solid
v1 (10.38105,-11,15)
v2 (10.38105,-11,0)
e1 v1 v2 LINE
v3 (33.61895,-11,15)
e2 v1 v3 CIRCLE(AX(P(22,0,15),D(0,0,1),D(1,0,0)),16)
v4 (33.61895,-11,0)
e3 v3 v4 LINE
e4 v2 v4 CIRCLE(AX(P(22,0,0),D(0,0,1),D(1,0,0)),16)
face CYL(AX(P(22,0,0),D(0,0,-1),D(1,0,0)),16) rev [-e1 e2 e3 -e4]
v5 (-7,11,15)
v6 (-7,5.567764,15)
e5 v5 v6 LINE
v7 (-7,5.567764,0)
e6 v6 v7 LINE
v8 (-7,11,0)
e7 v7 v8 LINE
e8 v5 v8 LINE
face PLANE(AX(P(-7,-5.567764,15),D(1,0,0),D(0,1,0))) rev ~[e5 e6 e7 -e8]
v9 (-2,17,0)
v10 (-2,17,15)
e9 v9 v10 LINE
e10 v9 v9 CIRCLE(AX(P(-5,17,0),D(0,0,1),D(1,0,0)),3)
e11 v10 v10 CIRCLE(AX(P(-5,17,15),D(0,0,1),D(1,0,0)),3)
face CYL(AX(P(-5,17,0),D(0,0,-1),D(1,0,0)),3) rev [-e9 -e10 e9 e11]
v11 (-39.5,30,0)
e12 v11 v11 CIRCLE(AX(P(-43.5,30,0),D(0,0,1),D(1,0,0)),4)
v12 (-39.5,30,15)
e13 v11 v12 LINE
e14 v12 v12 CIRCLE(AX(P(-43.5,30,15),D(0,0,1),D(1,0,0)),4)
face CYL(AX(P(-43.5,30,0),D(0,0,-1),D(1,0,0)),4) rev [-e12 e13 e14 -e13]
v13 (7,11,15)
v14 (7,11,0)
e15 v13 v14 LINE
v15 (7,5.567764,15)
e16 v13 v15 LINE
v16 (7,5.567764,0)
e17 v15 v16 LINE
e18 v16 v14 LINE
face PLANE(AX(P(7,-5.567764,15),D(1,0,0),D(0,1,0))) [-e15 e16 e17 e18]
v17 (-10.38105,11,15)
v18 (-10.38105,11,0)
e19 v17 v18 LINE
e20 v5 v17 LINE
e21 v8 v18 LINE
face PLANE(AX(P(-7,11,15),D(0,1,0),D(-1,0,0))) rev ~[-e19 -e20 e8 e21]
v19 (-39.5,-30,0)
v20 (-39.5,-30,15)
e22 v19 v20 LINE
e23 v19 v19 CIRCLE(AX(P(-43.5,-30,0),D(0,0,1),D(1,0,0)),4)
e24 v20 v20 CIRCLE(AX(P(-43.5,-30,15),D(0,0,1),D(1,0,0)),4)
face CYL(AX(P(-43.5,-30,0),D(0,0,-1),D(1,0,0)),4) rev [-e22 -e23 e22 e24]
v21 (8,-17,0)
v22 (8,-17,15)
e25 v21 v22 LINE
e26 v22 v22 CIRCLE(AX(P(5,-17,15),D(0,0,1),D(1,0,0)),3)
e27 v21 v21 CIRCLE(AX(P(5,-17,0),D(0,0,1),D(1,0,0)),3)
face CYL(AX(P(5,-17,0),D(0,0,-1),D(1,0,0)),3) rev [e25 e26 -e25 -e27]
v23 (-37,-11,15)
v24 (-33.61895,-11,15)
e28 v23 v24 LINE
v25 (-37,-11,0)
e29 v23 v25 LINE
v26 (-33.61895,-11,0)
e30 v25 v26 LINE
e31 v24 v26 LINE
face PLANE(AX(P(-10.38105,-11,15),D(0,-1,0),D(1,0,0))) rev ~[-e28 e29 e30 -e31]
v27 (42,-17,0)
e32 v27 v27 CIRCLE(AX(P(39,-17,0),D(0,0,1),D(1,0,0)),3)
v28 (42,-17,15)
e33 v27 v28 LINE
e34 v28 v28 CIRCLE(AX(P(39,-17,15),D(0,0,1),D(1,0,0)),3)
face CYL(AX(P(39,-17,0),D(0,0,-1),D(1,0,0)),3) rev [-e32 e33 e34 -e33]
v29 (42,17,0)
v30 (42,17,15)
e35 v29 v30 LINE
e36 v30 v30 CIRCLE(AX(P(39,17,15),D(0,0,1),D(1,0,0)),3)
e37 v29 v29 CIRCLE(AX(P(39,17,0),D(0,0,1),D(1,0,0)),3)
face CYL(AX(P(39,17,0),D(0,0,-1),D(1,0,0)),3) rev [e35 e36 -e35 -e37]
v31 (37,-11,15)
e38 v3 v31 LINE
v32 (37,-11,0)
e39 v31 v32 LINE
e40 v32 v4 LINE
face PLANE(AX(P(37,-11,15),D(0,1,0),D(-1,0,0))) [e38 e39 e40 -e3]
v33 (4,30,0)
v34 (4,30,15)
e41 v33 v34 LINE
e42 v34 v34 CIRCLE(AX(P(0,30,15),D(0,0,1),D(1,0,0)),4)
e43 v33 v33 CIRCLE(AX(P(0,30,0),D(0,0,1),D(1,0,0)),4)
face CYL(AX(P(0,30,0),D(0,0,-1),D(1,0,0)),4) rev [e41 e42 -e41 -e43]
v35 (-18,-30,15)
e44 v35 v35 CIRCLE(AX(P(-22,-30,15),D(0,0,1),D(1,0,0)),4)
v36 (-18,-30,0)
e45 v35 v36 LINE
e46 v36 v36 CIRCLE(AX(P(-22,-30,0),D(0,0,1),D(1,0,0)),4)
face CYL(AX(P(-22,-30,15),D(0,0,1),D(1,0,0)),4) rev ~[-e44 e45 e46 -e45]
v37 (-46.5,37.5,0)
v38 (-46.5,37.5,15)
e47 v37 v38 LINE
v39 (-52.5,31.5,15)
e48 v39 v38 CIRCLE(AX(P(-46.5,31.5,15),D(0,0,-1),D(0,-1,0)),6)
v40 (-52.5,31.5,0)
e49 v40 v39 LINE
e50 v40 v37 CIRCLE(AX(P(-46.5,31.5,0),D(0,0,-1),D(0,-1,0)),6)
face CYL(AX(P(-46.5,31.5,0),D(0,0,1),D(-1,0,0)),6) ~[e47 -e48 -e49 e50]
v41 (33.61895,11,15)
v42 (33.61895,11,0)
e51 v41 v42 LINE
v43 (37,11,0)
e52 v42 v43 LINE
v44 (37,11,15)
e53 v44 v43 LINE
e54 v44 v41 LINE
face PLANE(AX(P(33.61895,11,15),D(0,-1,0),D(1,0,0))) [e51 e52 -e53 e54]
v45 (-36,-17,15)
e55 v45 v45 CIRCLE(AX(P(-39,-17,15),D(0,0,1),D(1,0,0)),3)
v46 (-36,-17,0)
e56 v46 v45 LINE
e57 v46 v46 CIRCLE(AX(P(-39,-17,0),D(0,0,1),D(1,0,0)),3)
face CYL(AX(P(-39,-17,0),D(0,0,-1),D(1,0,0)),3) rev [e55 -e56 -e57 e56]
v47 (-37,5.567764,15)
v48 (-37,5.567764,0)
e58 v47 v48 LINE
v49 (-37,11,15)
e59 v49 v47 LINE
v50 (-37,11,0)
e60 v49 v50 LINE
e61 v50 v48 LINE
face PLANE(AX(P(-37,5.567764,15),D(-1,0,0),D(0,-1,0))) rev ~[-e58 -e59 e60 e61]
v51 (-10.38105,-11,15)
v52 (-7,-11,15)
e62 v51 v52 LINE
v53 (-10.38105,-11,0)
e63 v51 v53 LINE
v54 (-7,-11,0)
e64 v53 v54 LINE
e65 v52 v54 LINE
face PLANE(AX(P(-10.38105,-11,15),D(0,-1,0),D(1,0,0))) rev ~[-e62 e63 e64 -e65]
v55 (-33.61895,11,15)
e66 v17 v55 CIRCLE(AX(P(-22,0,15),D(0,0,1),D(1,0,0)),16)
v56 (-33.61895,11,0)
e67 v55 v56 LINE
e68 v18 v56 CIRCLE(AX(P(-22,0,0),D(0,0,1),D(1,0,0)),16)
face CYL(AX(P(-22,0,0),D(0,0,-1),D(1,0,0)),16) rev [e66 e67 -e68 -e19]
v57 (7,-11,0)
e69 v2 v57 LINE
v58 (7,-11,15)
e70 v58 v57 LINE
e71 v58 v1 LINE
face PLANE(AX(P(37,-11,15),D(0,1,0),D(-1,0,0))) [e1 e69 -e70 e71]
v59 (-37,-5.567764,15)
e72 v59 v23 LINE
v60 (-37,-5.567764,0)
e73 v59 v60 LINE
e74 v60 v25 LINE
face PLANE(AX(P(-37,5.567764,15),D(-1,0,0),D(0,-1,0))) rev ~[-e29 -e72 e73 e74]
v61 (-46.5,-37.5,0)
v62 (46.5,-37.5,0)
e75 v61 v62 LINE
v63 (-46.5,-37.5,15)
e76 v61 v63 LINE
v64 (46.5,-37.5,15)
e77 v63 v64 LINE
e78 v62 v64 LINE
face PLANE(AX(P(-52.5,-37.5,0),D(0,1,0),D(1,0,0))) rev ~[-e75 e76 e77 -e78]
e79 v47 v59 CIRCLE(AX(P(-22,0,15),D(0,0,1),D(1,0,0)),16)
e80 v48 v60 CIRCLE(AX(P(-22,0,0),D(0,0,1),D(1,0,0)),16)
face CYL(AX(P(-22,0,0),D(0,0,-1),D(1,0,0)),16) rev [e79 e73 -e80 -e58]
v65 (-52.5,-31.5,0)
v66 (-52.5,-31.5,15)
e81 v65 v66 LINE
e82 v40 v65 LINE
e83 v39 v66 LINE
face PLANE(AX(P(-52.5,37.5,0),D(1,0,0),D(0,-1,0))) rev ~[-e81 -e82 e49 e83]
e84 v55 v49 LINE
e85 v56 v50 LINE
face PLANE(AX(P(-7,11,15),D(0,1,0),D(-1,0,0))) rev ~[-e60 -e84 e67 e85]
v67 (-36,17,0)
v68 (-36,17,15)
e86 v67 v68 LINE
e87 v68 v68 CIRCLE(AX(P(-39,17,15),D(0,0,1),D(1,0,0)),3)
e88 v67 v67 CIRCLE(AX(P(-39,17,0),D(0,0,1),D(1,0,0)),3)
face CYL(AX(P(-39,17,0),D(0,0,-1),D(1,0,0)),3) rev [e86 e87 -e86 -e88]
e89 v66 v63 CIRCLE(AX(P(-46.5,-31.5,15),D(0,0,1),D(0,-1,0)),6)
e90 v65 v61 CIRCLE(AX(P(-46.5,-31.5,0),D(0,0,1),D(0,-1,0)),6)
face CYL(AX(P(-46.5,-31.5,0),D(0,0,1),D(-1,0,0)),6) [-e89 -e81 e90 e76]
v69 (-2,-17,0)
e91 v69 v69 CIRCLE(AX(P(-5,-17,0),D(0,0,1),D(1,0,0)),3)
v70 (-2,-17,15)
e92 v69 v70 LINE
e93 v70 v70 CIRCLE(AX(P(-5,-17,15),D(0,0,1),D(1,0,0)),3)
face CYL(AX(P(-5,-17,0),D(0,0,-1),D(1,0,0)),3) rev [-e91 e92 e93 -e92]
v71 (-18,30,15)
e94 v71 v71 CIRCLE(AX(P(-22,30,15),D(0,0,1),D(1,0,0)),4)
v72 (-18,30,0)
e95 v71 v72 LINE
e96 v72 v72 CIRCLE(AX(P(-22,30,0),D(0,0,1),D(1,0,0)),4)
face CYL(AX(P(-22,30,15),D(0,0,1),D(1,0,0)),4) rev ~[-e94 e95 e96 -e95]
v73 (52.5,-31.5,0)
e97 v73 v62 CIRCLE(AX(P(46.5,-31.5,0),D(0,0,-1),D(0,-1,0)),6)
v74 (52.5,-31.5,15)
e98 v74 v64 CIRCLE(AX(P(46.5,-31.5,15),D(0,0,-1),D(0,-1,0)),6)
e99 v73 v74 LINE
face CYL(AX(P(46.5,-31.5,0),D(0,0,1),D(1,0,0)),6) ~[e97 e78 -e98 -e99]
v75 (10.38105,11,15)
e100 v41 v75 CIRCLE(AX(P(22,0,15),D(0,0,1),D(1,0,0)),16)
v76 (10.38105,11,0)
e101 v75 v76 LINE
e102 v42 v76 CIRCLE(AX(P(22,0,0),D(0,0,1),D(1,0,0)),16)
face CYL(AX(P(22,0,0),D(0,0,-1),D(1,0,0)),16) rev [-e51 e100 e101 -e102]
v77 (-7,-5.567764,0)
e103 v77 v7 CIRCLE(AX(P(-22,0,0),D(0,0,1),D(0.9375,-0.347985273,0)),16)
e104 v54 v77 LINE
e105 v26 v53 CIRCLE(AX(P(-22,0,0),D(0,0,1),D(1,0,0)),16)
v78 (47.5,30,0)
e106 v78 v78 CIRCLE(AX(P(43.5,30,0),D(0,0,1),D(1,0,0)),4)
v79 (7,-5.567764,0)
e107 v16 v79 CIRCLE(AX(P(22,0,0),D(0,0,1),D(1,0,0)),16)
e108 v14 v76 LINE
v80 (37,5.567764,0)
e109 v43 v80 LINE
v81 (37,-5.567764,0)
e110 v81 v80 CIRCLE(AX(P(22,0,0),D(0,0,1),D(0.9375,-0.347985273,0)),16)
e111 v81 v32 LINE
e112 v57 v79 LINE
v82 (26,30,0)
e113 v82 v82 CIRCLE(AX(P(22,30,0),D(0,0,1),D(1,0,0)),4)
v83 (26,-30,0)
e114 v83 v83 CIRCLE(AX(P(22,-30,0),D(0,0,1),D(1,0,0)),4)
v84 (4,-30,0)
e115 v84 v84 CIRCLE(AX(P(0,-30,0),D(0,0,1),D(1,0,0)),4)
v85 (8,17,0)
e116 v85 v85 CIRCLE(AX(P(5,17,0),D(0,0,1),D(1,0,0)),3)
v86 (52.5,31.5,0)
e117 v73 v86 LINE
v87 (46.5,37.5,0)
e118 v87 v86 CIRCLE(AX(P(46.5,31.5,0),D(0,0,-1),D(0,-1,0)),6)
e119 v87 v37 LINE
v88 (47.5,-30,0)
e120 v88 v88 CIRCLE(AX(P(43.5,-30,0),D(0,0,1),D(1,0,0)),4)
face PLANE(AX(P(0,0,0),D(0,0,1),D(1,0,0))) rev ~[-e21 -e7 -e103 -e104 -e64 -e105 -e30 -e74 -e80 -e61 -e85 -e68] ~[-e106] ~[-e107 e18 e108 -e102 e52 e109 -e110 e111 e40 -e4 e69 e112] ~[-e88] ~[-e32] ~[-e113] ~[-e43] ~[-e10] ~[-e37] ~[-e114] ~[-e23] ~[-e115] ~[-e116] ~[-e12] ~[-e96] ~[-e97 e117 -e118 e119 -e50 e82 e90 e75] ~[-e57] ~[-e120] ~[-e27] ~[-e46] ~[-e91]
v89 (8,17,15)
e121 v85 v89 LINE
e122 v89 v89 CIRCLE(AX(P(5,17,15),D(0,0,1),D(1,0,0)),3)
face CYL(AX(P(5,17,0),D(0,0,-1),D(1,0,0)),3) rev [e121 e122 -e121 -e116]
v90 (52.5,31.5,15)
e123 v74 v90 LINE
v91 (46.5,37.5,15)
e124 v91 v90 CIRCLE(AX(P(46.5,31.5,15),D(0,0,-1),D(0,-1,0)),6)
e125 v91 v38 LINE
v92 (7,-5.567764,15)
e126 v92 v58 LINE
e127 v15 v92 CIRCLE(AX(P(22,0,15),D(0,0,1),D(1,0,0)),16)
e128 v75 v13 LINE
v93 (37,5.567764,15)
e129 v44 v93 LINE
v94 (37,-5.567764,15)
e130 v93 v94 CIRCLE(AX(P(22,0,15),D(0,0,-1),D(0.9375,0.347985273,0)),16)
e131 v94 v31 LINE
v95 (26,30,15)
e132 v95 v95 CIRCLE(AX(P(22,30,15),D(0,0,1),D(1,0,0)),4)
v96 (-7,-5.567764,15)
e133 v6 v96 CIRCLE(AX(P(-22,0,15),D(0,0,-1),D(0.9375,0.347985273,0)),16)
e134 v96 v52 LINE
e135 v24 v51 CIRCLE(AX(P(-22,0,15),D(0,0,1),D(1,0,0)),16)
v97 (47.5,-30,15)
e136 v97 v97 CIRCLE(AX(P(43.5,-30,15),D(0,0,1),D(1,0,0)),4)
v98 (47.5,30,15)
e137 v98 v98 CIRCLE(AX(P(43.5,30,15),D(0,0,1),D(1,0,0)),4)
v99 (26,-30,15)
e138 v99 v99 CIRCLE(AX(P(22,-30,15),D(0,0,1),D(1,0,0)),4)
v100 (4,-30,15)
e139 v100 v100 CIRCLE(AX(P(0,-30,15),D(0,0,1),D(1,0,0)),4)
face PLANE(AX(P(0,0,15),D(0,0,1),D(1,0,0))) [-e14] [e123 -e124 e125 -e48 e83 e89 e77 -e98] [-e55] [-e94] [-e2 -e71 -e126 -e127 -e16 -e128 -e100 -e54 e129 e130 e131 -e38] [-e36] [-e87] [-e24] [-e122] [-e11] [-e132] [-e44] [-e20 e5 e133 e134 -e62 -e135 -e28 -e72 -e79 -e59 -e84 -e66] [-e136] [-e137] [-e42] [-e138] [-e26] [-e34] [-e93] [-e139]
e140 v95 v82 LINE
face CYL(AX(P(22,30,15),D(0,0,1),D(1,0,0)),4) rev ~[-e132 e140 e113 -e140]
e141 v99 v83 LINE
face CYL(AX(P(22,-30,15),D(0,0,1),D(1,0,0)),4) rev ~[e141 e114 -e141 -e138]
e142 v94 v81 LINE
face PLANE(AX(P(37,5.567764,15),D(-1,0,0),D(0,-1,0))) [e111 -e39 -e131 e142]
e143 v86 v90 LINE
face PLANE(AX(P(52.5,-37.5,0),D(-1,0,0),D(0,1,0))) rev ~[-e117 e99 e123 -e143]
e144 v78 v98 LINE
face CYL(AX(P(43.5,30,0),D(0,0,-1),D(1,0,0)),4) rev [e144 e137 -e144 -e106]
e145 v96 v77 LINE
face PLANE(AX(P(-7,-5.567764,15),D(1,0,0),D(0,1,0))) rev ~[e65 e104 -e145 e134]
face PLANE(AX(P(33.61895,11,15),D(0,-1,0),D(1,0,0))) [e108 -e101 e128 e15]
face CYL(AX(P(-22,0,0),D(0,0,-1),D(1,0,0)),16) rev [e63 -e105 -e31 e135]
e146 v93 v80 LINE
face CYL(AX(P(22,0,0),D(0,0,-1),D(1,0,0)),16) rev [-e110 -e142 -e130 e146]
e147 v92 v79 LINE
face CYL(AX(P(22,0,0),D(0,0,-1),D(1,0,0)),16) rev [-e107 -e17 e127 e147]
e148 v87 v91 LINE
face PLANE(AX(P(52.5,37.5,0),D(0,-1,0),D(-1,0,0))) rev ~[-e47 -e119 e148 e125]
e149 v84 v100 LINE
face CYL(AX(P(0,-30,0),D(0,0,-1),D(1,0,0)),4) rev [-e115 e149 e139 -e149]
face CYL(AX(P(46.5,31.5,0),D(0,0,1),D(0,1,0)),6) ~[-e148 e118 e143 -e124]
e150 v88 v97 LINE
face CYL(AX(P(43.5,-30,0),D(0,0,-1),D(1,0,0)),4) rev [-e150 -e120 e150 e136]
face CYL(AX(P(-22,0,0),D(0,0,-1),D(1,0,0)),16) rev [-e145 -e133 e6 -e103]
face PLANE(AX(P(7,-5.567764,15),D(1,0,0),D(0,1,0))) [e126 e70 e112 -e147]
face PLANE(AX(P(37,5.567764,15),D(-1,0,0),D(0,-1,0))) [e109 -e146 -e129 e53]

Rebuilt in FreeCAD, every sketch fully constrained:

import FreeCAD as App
import Part
import Sketcher
from FreeCAD import Vector
Q = App.Units.Quantity


def edges_at(feature, points):
    """Names of the edges that pass closest to the given points."""
    edges = feature.Shape.Edges
    near = lambda p: min(range(len(edges)), key=lambda i: edges[i].distToShape(Part.Vertex(*p))[0])
    return sorted({f"Edge{near(p) + 1}" for p in points})

doc = App.newDocument("Part")
params = doc.addObject("Spreadsheet::Sheet", "Params")
for row, (alias, value) in enumerate([
    ("sketch1_diameter", "8 mm"),
    ("sketch1_diameter2", "6 mm"),
    ("sketch1_diameter3", "32 mm"),
    ("sketch1_width", "105 mm"),
    ("sketch1_height", "75 mm"),
    ("pad1_length", "15 mm"),
    ("fillet_radius", "6 mm"),
    ("sketch2_width", "30 mm"),
    ("sketch2_height", "22 mm"),
    ("sketch3_diameter", "8 mm"),
], start=1):
    params.set(f"A{row}", alias)
    params.set(f"B{row}", "=" + value)
    params.setAlias(f"B{row}", alias)

body = doc.addObject("PartDesign::Body", "Body")

# Sketch on XY plane
sketch1 = doc.addObject("Sketcher::SketchObject", "Sketch")
body.addObject(sketch1)
sketch1.AttachmentSupport = (doc.XY_Plane, [""])
sketch1.MapMode = "FlatFace"
sketch1.addGeometry(Part.LineSegment(Vector(-52.5, 37.5, 0), Vector(-52.5, -37.5, 0)), False)
sketch1.addGeometry(Part.LineSegment(Vector(-52.5, -37.5, 0), Vector(52.5, -37.5, 0)), False)
sketch1.addGeometry(Part.LineSegment(Vector(52.5, -37.5, 0), Vector(52.5, 37.5, 0)), False)
sketch1.addGeometry(Part.LineSegment(Vector(52.5, 37.5, 0), Vector(-52.5, 37.5, 0)), False)
sketch1.addGeometry(Part.Circle(Vector(-43.5, -30, 0), Vector(0, 0, 1), 4), False)
sketch1.addGeometry(Part.Circle(Vector(-39, -17, 0), Vector(0, 0, 1), 3), False)
sketch1.addGeometry(Part.Circle(Vector(-5, -17, 0), Vector(0, 0, 1), 3), False)
sketch1.addGeometry(Part.Circle(Vector(0, -30, 0), Vector(0, 0, 1), 4), False)
sketch1.addGeometry(Part.Circle(Vector(43.5, -30, 0), Vector(0, 0, 1), 4), False)
sketch1.addGeometry(Part.Circle(Vector(5, -17, 0), Vector(0, 0, 1), 3), False)
sketch1.addGeometry(Part.Circle(Vector(39, -17, 0), Vector(0, 0, 1), 3), False)
sketch1.addGeometry(Part.Circle(Vector(-39, 17, 0), Vector(0, 0, 1), 3), False)
sketch1.addGeometry(Part.Circle(Vector(-22, 0, 0), Vector(0, 0, 1), 16), False)
sketch1.addGeometry(Part.Circle(Vector(-5, 17, 0), Vector(0, 0, 1), 3), False)
sketch1.addGeometry(Part.Circle(Vector(-43.5, 30, 0), Vector(0, 0, 1), 4), False)
sketch1.addGeometry(Part.Circle(Vector(22, 0, 0), Vector(0, 0, 1), 16), False)
sketch1.addGeometry(Part.Circle(Vector(5, 17, 0), Vector(0, 0, 1), 3), False)
sketch1.addGeometry(Part.Circle(Vector(39, 17, 0), Vector(0, 0, 1), 3), False)
sketch1.addGeometry(Part.Circle(Vector(0, 30, 0), Vector(0, 0, 1), 4), False)
sketch1.addGeometry(Part.Circle(Vector(43.5, 30, 0), Vector(0, 0, 1), 4), False)
sketch1.addConstraint(Sketcher.Constraint("Coincident", 0, 2, 1, 1))
sketch1.addConstraint(Sketcher.Constraint("Coincident", 1, 2, 2, 1))
sketch1.addConstraint(Sketcher.Constraint("Coincident", 2, 2, 3, 1))
sketch1.addConstraint(Sketcher.Constraint("Coincident", 3, 2, 0, 1))
sketch1.addConstraint(Sketcher.Constraint("Vertical", 0))
sketch1.addConstraint(Sketcher.Constraint("Horizontal", 1))
sketch1.addConstraint(Sketcher.Constraint("Vertical", 2))
sketch1.addConstraint(Sketcher.Constraint("Horizontal", 3))
sketch1.addConstraint(Sketcher.Constraint("Equal", 5, 6))
sketch1.addConstraint(Sketcher.Constraint("Equal", 4, 7))
sketch1.addConstraint(Sketcher.Constraint("Equal", 7, 8))
sketch1.addConstraint(Sketcher.Constraint("Equal", 6, 9))
sketch1.addConstraint(Sketcher.Constraint("Equal", 9, 10))
sketch1.addConstraint(Sketcher.Constraint("Equal", 10, 11))
sketch1.addConstraint(Sketcher.Constraint("Equal", 11, 13))
sketch1.addConstraint(Sketcher.Constraint("Equal", 8, 14))
sketch1.addConstraint(Sketcher.Constraint("Equal", 12, 15))
sketch1.addConstraint(Sketcher.Constraint("Equal", 13, 16))
sketch1.addConstraint(Sketcher.Constraint("Equal", 16, 17))
sketch1.addConstraint(Sketcher.Constraint("Equal", 14, 18))
sketch1.addConstraint(Sketcher.Constraint("Equal", 18, 19))
sketch1.addConstraint(Sketcher.Constraint("Symmetric", 10, 3, 11, 3, -1, 1))
sketch1.addConstraint(Sketcher.Constraint("Symmetric", 9, 3, 13, 3, -1, 1))
sketch1.addConstraint(Sketcher.Constraint("Symmetric", 8, 3, 14, 3, -1, 1))
sketch1.addConstraint(Sketcher.Constraint("Symmetric", 12, 3, 15, 3, -1, 1))
sketch1.addConstraint(Sketcher.Constraint("Symmetric", 6, 3, 16, 3, -1, 1))
sketch1.addConstraint(Sketcher.Constraint("Symmetric", 5, 3, 17, 3, -1, 1))
sketch1.addConstraint(Sketcher.Constraint("Symmetric", 7, 3, 18, 3, -1, 1))
sketch1.addConstraint(Sketcher.Constraint("Symmetric", 4, 3, 19, 3, -1, 1))
sketch1.addConstraint(Sketcher.Constraint("Symmetric", 0, 2, 2, 2, -1, 1))
sketch1.addConstraint(Sketcher.Constraint("Symmetric", 4, 3, 8, 3, -2))
sketch1.addConstraint(Sketcher.Constraint("Symmetric", 6, 3, 9, 3, -2))
sketch1.addConstraint(Sketcher.Constraint("Symmetric", 5, 3, 10, 3, -2))
sketch1.addConstraint(Sketcher.Constraint("PointOnObject", 7, 3, -2))
sketch1.addConstraint(Sketcher.Constraint("PointOnObject", 12, 3, -1))
sketch1.addConstraint(Sketcher.Constraint("Horizontal", 5, 3, 6, 3))
sketch1.addConstraint(Sketcher.Constraint("Horizontal", 4, 3, 7, 3))
sketch1.addConstraint(Sketcher.Constraint("Diameter", 4, Q("8 mm")))
sketch1.addConstraint(Sketcher.Constraint("Diameter", 5, Q("6 mm")))
sketch1.addConstraint(Sketcher.Constraint("Diameter", 12, Q("32 mm")))
sketch1.addConstraint(Sketcher.Constraint("DistanceX", 1, 1, 1, 2, Q("105 mm")))
sketch1.addConstraint(Sketcher.Constraint("DistanceY", 0, 2, 0, 1, Q("75 mm")))
sketch1.addConstraint(Sketcher.Constraint("DistanceX", 5, 3, 6, 3, Q("34 mm")))
sketch1.addConstraint(Sketcher.Constraint("DistanceX", 4, 3, 8, 3, Q("87 mm")))
sketch1.addConstraint(Sketcher.Constraint("DistanceX", 5, 3, 9, 3, Q("44 mm")))
sketch1.addConstraint(Sketcher.Constraint("DistanceY", 5, 3, 11, 3, Q("34 mm")))
sketch1.addConstraint(Sketcher.Constraint("DistanceY", 4, 3, 14, 3, Q("60 mm")))
sketch1.addConstraint(Sketcher.Constraint("DistanceX", 12, 3, -1, 1, Q("22 mm")))
sketch1.setExpression("Constraints[37]", "Params.sketch1_diameter")
sketch1.setExpression("Constraints[38]", "Params.sketch1_diameter2")
sketch1.setExpression("Constraints[39]", "Params.sketch1_diameter3")
sketch1.setExpression("Constraints[40]", "Params.sketch1_width")
sketch1.setExpression("Constraints[41]", "Params.sketch1_height")
pad1 = doc.addObject("PartDesign::Pad", "Pad")
body.addObject(pad1)
pad1.Profile = sketch1
pad1.setExpression("Length", "Params.pad1_length")
doc.recompute()

fillet = doc.addObject("PartDesign::Fillet", "Fillet")
body.addObject(fillet)
fillet.Base = (pad1, edges_at(pad1, [
    (-52.5, 37.5, 7.5),
    (52.5, 37.5, 7.5),
    (52.5, -37.5, 7.5),
    (-52.5, -37.5, 7.5),
]))
fillet.setExpression("Radius", "Params.fillet_radius")

# Sketch on XY plane
sketch2 = doc.addObject("Sketcher::SketchObject", "Sketch001")
body.addObject(sketch2)
sketch2.AttachmentSupport = (doc.XY_Plane, [""])
sketch2.MapMode = "FlatFace"
sketch2.AttachmentOffset = App.Placement(Vector(0, 0, 15), App.Rotation())
sketch2.addGeometry(Part.LineSegment(Vector(37, 11, 0), Vector(7, 11, 0)), False)
sketch2.addGeometry(Part.LineSegment(Vector(7, 11, 0), Vector(7, -11, 0)), False)
sketch2.addGeometry(Part.LineSegment(Vector(7, -11, 0), Vector(37, -11, 0)), False)
sketch2.addGeometry(Part.LineSegment(Vector(37, -11, 0), Vector(37, 11, 0)), False)
sketch2.addGeometry(Part.LineSegment(Vector(-7, 11, 0), Vector(-37, 11, 0)), False)
sketch2.addGeometry(Part.LineSegment(Vector(-37, 11, 0), Vector(-37, -11, 0)), False)
sketch2.addGeometry(Part.LineSegment(Vector(-37, -11, 0), Vector(-7, -11, 0)), False)
sketch2.addGeometry(Part.LineSegment(Vector(-7, -11, 0), Vector(-7, 11, 0)), False)
sketch2.addConstraint(Sketcher.Constraint("Coincident", 0, 2, 1, 1))
sketch2.addConstraint(Sketcher.Constraint("Coincident", 1, 2, 2, 1))
sketch2.addConstraint(Sketcher.Constraint("Coincident", 2, 2, 3, 1))
sketch2.addConstraint(Sketcher.Constraint("Coincident", 3, 2, 0, 1))
sketch2.addConstraint(Sketcher.Constraint("Coincident", 4, 2, 5, 1))
sketch2.addConstraint(Sketcher.Constraint("Coincident", 5, 2, 6, 1))
sketch2.addConstraint(Sketcher.Constraint("Coincident", 6, 2, 7, 1))
sketch2.addConstraint(Sketcher.Constraint("Coincident", 7, 2, 4, 1))
sketch2.addConstraint(Sketcher.Constraint("Horizontal", 0))
sketch2.addConstraint(Sketcher.Constraint("Vertical", 1))
sketch2.addConstraint(Sketcher.Constraint("Horizontal", 2))
sketch2.addConstraint(Sketcher.Constraint("Vertical", 3))
sketch2.addConstraint(Sketcher.Constraint("Horizontal", 4))
sketch2.addConstraint(Sketcher.Constraint("Vertical", 5))
sketch2.addConstraint(Sketcher.Constraint("Horizontal", 6))
sketch2.addConstraint(Sketcher.Constraint("Vertical", 7))
sketch2.addConstraint(Sketcher.Constraint("Symmetric", 2, 2, 4, 2, -1, 1))
sketch2.addConstraint(Sketcher.Constraint("Symmetric", 0, 2, 6, 2, -1, 1))
sketch2.addConstraint(Sketcher.Constraint("Horizontal", 3, 2, 4, 2))
sketch2.addConstraint(Sketcher.Constraint("DistanceX", 0, 2, 0, 1, Q("30 mm")))
sketch2.addConstraint(Sketcher.Constraint("DistanceY", 1, 2, 1, 1, Q("22 mm")))
sketch2.addConstraint(Sketcher.Constraint("DistanceX", -1, 1, 0, 2, Q("7 mm")))
sketch2.setExpression("Constraints[19]", "Params.sketch2_width")
sketch2.setExpression("Constraints[20]", "Params.sketch2_height")
pocket1 = doc.addObject("PartDesign::Pocket", "Pocket")
body.addObject(pocket1)
pocket1.Profile = sketch2
pocket1.Type = "ThroughAll"

# Sketch on XY plane
sketch3 = doc.addObject("Sketcher::SketchObject", "Sketch002")
body.addObject(sketch3)
sketch3.AttachmentSupport = (doc.XY_Plane, [""])
sketch3.MapMode = "FlatFace"
sketch3.AttachmentOffset = App.Placement(Vector(0, 0, 15), App.Rotation())
sketch3.addGeometry(Part.Circle(Vector(-22, 30, 0), Vector(0, 0, 1), 4), False)
sketch3.addGeometry(Part.Circle(Vector(22, 30, 0), Vector(0, 0, 1), 4), False)
sketch3.addGeometry(Part.Circle(Vector(22, -30, 0), Vector(0, 0, 1), 4), False)
sketch3.addGeometry(Part.Circle(Vector(-22, -30, 0), Vector(0, 0, 1), 4), False)
sketch3.addConstraint(Sketcher.Constraint("Equal", 0, 1))
sketch3.addConstraint(Sketcher.Constraint("Equal", 1, 2))
sketch3.addConstraint(Sketcher.Constraint("Equal", 2, 3))
sketch3.addConstraint(Sketcher.Constraint("Symmetric", 0, 3, 2, 3, -1, 1))
sketch3.addConstraint(Sketcher.Constraint("Symmetric", 1, 3, 3, 3, -1, 1))
sketch3.addConstraint(Sketcher.Constraint("Symmetric", 0, 3, 1, 3, -2))
sketch3.addConstraint(Sketcher.Constraint("Diameter", 0, Q("8 mm")))
sketch3.addConstraint(Sketcher.Constraint("DistanceX", 0, 3, -1, 1, Q("22 mm")))
sketch3.addConstraint(Sketcher.Constraint("DistanceY", -1, 1, 0, 3, Q("30 mm")))
sketch3.setExpression("Constraints[6]", "Params.sketch3_diameter")
pocket2 = doc.addObject("PartDesign::Pocket", "Pocket001")
body.addObject(pocket2)
pocket2.Profile = sketch3
pocket2.Type = "ThroughAll"

doc.recompute()
